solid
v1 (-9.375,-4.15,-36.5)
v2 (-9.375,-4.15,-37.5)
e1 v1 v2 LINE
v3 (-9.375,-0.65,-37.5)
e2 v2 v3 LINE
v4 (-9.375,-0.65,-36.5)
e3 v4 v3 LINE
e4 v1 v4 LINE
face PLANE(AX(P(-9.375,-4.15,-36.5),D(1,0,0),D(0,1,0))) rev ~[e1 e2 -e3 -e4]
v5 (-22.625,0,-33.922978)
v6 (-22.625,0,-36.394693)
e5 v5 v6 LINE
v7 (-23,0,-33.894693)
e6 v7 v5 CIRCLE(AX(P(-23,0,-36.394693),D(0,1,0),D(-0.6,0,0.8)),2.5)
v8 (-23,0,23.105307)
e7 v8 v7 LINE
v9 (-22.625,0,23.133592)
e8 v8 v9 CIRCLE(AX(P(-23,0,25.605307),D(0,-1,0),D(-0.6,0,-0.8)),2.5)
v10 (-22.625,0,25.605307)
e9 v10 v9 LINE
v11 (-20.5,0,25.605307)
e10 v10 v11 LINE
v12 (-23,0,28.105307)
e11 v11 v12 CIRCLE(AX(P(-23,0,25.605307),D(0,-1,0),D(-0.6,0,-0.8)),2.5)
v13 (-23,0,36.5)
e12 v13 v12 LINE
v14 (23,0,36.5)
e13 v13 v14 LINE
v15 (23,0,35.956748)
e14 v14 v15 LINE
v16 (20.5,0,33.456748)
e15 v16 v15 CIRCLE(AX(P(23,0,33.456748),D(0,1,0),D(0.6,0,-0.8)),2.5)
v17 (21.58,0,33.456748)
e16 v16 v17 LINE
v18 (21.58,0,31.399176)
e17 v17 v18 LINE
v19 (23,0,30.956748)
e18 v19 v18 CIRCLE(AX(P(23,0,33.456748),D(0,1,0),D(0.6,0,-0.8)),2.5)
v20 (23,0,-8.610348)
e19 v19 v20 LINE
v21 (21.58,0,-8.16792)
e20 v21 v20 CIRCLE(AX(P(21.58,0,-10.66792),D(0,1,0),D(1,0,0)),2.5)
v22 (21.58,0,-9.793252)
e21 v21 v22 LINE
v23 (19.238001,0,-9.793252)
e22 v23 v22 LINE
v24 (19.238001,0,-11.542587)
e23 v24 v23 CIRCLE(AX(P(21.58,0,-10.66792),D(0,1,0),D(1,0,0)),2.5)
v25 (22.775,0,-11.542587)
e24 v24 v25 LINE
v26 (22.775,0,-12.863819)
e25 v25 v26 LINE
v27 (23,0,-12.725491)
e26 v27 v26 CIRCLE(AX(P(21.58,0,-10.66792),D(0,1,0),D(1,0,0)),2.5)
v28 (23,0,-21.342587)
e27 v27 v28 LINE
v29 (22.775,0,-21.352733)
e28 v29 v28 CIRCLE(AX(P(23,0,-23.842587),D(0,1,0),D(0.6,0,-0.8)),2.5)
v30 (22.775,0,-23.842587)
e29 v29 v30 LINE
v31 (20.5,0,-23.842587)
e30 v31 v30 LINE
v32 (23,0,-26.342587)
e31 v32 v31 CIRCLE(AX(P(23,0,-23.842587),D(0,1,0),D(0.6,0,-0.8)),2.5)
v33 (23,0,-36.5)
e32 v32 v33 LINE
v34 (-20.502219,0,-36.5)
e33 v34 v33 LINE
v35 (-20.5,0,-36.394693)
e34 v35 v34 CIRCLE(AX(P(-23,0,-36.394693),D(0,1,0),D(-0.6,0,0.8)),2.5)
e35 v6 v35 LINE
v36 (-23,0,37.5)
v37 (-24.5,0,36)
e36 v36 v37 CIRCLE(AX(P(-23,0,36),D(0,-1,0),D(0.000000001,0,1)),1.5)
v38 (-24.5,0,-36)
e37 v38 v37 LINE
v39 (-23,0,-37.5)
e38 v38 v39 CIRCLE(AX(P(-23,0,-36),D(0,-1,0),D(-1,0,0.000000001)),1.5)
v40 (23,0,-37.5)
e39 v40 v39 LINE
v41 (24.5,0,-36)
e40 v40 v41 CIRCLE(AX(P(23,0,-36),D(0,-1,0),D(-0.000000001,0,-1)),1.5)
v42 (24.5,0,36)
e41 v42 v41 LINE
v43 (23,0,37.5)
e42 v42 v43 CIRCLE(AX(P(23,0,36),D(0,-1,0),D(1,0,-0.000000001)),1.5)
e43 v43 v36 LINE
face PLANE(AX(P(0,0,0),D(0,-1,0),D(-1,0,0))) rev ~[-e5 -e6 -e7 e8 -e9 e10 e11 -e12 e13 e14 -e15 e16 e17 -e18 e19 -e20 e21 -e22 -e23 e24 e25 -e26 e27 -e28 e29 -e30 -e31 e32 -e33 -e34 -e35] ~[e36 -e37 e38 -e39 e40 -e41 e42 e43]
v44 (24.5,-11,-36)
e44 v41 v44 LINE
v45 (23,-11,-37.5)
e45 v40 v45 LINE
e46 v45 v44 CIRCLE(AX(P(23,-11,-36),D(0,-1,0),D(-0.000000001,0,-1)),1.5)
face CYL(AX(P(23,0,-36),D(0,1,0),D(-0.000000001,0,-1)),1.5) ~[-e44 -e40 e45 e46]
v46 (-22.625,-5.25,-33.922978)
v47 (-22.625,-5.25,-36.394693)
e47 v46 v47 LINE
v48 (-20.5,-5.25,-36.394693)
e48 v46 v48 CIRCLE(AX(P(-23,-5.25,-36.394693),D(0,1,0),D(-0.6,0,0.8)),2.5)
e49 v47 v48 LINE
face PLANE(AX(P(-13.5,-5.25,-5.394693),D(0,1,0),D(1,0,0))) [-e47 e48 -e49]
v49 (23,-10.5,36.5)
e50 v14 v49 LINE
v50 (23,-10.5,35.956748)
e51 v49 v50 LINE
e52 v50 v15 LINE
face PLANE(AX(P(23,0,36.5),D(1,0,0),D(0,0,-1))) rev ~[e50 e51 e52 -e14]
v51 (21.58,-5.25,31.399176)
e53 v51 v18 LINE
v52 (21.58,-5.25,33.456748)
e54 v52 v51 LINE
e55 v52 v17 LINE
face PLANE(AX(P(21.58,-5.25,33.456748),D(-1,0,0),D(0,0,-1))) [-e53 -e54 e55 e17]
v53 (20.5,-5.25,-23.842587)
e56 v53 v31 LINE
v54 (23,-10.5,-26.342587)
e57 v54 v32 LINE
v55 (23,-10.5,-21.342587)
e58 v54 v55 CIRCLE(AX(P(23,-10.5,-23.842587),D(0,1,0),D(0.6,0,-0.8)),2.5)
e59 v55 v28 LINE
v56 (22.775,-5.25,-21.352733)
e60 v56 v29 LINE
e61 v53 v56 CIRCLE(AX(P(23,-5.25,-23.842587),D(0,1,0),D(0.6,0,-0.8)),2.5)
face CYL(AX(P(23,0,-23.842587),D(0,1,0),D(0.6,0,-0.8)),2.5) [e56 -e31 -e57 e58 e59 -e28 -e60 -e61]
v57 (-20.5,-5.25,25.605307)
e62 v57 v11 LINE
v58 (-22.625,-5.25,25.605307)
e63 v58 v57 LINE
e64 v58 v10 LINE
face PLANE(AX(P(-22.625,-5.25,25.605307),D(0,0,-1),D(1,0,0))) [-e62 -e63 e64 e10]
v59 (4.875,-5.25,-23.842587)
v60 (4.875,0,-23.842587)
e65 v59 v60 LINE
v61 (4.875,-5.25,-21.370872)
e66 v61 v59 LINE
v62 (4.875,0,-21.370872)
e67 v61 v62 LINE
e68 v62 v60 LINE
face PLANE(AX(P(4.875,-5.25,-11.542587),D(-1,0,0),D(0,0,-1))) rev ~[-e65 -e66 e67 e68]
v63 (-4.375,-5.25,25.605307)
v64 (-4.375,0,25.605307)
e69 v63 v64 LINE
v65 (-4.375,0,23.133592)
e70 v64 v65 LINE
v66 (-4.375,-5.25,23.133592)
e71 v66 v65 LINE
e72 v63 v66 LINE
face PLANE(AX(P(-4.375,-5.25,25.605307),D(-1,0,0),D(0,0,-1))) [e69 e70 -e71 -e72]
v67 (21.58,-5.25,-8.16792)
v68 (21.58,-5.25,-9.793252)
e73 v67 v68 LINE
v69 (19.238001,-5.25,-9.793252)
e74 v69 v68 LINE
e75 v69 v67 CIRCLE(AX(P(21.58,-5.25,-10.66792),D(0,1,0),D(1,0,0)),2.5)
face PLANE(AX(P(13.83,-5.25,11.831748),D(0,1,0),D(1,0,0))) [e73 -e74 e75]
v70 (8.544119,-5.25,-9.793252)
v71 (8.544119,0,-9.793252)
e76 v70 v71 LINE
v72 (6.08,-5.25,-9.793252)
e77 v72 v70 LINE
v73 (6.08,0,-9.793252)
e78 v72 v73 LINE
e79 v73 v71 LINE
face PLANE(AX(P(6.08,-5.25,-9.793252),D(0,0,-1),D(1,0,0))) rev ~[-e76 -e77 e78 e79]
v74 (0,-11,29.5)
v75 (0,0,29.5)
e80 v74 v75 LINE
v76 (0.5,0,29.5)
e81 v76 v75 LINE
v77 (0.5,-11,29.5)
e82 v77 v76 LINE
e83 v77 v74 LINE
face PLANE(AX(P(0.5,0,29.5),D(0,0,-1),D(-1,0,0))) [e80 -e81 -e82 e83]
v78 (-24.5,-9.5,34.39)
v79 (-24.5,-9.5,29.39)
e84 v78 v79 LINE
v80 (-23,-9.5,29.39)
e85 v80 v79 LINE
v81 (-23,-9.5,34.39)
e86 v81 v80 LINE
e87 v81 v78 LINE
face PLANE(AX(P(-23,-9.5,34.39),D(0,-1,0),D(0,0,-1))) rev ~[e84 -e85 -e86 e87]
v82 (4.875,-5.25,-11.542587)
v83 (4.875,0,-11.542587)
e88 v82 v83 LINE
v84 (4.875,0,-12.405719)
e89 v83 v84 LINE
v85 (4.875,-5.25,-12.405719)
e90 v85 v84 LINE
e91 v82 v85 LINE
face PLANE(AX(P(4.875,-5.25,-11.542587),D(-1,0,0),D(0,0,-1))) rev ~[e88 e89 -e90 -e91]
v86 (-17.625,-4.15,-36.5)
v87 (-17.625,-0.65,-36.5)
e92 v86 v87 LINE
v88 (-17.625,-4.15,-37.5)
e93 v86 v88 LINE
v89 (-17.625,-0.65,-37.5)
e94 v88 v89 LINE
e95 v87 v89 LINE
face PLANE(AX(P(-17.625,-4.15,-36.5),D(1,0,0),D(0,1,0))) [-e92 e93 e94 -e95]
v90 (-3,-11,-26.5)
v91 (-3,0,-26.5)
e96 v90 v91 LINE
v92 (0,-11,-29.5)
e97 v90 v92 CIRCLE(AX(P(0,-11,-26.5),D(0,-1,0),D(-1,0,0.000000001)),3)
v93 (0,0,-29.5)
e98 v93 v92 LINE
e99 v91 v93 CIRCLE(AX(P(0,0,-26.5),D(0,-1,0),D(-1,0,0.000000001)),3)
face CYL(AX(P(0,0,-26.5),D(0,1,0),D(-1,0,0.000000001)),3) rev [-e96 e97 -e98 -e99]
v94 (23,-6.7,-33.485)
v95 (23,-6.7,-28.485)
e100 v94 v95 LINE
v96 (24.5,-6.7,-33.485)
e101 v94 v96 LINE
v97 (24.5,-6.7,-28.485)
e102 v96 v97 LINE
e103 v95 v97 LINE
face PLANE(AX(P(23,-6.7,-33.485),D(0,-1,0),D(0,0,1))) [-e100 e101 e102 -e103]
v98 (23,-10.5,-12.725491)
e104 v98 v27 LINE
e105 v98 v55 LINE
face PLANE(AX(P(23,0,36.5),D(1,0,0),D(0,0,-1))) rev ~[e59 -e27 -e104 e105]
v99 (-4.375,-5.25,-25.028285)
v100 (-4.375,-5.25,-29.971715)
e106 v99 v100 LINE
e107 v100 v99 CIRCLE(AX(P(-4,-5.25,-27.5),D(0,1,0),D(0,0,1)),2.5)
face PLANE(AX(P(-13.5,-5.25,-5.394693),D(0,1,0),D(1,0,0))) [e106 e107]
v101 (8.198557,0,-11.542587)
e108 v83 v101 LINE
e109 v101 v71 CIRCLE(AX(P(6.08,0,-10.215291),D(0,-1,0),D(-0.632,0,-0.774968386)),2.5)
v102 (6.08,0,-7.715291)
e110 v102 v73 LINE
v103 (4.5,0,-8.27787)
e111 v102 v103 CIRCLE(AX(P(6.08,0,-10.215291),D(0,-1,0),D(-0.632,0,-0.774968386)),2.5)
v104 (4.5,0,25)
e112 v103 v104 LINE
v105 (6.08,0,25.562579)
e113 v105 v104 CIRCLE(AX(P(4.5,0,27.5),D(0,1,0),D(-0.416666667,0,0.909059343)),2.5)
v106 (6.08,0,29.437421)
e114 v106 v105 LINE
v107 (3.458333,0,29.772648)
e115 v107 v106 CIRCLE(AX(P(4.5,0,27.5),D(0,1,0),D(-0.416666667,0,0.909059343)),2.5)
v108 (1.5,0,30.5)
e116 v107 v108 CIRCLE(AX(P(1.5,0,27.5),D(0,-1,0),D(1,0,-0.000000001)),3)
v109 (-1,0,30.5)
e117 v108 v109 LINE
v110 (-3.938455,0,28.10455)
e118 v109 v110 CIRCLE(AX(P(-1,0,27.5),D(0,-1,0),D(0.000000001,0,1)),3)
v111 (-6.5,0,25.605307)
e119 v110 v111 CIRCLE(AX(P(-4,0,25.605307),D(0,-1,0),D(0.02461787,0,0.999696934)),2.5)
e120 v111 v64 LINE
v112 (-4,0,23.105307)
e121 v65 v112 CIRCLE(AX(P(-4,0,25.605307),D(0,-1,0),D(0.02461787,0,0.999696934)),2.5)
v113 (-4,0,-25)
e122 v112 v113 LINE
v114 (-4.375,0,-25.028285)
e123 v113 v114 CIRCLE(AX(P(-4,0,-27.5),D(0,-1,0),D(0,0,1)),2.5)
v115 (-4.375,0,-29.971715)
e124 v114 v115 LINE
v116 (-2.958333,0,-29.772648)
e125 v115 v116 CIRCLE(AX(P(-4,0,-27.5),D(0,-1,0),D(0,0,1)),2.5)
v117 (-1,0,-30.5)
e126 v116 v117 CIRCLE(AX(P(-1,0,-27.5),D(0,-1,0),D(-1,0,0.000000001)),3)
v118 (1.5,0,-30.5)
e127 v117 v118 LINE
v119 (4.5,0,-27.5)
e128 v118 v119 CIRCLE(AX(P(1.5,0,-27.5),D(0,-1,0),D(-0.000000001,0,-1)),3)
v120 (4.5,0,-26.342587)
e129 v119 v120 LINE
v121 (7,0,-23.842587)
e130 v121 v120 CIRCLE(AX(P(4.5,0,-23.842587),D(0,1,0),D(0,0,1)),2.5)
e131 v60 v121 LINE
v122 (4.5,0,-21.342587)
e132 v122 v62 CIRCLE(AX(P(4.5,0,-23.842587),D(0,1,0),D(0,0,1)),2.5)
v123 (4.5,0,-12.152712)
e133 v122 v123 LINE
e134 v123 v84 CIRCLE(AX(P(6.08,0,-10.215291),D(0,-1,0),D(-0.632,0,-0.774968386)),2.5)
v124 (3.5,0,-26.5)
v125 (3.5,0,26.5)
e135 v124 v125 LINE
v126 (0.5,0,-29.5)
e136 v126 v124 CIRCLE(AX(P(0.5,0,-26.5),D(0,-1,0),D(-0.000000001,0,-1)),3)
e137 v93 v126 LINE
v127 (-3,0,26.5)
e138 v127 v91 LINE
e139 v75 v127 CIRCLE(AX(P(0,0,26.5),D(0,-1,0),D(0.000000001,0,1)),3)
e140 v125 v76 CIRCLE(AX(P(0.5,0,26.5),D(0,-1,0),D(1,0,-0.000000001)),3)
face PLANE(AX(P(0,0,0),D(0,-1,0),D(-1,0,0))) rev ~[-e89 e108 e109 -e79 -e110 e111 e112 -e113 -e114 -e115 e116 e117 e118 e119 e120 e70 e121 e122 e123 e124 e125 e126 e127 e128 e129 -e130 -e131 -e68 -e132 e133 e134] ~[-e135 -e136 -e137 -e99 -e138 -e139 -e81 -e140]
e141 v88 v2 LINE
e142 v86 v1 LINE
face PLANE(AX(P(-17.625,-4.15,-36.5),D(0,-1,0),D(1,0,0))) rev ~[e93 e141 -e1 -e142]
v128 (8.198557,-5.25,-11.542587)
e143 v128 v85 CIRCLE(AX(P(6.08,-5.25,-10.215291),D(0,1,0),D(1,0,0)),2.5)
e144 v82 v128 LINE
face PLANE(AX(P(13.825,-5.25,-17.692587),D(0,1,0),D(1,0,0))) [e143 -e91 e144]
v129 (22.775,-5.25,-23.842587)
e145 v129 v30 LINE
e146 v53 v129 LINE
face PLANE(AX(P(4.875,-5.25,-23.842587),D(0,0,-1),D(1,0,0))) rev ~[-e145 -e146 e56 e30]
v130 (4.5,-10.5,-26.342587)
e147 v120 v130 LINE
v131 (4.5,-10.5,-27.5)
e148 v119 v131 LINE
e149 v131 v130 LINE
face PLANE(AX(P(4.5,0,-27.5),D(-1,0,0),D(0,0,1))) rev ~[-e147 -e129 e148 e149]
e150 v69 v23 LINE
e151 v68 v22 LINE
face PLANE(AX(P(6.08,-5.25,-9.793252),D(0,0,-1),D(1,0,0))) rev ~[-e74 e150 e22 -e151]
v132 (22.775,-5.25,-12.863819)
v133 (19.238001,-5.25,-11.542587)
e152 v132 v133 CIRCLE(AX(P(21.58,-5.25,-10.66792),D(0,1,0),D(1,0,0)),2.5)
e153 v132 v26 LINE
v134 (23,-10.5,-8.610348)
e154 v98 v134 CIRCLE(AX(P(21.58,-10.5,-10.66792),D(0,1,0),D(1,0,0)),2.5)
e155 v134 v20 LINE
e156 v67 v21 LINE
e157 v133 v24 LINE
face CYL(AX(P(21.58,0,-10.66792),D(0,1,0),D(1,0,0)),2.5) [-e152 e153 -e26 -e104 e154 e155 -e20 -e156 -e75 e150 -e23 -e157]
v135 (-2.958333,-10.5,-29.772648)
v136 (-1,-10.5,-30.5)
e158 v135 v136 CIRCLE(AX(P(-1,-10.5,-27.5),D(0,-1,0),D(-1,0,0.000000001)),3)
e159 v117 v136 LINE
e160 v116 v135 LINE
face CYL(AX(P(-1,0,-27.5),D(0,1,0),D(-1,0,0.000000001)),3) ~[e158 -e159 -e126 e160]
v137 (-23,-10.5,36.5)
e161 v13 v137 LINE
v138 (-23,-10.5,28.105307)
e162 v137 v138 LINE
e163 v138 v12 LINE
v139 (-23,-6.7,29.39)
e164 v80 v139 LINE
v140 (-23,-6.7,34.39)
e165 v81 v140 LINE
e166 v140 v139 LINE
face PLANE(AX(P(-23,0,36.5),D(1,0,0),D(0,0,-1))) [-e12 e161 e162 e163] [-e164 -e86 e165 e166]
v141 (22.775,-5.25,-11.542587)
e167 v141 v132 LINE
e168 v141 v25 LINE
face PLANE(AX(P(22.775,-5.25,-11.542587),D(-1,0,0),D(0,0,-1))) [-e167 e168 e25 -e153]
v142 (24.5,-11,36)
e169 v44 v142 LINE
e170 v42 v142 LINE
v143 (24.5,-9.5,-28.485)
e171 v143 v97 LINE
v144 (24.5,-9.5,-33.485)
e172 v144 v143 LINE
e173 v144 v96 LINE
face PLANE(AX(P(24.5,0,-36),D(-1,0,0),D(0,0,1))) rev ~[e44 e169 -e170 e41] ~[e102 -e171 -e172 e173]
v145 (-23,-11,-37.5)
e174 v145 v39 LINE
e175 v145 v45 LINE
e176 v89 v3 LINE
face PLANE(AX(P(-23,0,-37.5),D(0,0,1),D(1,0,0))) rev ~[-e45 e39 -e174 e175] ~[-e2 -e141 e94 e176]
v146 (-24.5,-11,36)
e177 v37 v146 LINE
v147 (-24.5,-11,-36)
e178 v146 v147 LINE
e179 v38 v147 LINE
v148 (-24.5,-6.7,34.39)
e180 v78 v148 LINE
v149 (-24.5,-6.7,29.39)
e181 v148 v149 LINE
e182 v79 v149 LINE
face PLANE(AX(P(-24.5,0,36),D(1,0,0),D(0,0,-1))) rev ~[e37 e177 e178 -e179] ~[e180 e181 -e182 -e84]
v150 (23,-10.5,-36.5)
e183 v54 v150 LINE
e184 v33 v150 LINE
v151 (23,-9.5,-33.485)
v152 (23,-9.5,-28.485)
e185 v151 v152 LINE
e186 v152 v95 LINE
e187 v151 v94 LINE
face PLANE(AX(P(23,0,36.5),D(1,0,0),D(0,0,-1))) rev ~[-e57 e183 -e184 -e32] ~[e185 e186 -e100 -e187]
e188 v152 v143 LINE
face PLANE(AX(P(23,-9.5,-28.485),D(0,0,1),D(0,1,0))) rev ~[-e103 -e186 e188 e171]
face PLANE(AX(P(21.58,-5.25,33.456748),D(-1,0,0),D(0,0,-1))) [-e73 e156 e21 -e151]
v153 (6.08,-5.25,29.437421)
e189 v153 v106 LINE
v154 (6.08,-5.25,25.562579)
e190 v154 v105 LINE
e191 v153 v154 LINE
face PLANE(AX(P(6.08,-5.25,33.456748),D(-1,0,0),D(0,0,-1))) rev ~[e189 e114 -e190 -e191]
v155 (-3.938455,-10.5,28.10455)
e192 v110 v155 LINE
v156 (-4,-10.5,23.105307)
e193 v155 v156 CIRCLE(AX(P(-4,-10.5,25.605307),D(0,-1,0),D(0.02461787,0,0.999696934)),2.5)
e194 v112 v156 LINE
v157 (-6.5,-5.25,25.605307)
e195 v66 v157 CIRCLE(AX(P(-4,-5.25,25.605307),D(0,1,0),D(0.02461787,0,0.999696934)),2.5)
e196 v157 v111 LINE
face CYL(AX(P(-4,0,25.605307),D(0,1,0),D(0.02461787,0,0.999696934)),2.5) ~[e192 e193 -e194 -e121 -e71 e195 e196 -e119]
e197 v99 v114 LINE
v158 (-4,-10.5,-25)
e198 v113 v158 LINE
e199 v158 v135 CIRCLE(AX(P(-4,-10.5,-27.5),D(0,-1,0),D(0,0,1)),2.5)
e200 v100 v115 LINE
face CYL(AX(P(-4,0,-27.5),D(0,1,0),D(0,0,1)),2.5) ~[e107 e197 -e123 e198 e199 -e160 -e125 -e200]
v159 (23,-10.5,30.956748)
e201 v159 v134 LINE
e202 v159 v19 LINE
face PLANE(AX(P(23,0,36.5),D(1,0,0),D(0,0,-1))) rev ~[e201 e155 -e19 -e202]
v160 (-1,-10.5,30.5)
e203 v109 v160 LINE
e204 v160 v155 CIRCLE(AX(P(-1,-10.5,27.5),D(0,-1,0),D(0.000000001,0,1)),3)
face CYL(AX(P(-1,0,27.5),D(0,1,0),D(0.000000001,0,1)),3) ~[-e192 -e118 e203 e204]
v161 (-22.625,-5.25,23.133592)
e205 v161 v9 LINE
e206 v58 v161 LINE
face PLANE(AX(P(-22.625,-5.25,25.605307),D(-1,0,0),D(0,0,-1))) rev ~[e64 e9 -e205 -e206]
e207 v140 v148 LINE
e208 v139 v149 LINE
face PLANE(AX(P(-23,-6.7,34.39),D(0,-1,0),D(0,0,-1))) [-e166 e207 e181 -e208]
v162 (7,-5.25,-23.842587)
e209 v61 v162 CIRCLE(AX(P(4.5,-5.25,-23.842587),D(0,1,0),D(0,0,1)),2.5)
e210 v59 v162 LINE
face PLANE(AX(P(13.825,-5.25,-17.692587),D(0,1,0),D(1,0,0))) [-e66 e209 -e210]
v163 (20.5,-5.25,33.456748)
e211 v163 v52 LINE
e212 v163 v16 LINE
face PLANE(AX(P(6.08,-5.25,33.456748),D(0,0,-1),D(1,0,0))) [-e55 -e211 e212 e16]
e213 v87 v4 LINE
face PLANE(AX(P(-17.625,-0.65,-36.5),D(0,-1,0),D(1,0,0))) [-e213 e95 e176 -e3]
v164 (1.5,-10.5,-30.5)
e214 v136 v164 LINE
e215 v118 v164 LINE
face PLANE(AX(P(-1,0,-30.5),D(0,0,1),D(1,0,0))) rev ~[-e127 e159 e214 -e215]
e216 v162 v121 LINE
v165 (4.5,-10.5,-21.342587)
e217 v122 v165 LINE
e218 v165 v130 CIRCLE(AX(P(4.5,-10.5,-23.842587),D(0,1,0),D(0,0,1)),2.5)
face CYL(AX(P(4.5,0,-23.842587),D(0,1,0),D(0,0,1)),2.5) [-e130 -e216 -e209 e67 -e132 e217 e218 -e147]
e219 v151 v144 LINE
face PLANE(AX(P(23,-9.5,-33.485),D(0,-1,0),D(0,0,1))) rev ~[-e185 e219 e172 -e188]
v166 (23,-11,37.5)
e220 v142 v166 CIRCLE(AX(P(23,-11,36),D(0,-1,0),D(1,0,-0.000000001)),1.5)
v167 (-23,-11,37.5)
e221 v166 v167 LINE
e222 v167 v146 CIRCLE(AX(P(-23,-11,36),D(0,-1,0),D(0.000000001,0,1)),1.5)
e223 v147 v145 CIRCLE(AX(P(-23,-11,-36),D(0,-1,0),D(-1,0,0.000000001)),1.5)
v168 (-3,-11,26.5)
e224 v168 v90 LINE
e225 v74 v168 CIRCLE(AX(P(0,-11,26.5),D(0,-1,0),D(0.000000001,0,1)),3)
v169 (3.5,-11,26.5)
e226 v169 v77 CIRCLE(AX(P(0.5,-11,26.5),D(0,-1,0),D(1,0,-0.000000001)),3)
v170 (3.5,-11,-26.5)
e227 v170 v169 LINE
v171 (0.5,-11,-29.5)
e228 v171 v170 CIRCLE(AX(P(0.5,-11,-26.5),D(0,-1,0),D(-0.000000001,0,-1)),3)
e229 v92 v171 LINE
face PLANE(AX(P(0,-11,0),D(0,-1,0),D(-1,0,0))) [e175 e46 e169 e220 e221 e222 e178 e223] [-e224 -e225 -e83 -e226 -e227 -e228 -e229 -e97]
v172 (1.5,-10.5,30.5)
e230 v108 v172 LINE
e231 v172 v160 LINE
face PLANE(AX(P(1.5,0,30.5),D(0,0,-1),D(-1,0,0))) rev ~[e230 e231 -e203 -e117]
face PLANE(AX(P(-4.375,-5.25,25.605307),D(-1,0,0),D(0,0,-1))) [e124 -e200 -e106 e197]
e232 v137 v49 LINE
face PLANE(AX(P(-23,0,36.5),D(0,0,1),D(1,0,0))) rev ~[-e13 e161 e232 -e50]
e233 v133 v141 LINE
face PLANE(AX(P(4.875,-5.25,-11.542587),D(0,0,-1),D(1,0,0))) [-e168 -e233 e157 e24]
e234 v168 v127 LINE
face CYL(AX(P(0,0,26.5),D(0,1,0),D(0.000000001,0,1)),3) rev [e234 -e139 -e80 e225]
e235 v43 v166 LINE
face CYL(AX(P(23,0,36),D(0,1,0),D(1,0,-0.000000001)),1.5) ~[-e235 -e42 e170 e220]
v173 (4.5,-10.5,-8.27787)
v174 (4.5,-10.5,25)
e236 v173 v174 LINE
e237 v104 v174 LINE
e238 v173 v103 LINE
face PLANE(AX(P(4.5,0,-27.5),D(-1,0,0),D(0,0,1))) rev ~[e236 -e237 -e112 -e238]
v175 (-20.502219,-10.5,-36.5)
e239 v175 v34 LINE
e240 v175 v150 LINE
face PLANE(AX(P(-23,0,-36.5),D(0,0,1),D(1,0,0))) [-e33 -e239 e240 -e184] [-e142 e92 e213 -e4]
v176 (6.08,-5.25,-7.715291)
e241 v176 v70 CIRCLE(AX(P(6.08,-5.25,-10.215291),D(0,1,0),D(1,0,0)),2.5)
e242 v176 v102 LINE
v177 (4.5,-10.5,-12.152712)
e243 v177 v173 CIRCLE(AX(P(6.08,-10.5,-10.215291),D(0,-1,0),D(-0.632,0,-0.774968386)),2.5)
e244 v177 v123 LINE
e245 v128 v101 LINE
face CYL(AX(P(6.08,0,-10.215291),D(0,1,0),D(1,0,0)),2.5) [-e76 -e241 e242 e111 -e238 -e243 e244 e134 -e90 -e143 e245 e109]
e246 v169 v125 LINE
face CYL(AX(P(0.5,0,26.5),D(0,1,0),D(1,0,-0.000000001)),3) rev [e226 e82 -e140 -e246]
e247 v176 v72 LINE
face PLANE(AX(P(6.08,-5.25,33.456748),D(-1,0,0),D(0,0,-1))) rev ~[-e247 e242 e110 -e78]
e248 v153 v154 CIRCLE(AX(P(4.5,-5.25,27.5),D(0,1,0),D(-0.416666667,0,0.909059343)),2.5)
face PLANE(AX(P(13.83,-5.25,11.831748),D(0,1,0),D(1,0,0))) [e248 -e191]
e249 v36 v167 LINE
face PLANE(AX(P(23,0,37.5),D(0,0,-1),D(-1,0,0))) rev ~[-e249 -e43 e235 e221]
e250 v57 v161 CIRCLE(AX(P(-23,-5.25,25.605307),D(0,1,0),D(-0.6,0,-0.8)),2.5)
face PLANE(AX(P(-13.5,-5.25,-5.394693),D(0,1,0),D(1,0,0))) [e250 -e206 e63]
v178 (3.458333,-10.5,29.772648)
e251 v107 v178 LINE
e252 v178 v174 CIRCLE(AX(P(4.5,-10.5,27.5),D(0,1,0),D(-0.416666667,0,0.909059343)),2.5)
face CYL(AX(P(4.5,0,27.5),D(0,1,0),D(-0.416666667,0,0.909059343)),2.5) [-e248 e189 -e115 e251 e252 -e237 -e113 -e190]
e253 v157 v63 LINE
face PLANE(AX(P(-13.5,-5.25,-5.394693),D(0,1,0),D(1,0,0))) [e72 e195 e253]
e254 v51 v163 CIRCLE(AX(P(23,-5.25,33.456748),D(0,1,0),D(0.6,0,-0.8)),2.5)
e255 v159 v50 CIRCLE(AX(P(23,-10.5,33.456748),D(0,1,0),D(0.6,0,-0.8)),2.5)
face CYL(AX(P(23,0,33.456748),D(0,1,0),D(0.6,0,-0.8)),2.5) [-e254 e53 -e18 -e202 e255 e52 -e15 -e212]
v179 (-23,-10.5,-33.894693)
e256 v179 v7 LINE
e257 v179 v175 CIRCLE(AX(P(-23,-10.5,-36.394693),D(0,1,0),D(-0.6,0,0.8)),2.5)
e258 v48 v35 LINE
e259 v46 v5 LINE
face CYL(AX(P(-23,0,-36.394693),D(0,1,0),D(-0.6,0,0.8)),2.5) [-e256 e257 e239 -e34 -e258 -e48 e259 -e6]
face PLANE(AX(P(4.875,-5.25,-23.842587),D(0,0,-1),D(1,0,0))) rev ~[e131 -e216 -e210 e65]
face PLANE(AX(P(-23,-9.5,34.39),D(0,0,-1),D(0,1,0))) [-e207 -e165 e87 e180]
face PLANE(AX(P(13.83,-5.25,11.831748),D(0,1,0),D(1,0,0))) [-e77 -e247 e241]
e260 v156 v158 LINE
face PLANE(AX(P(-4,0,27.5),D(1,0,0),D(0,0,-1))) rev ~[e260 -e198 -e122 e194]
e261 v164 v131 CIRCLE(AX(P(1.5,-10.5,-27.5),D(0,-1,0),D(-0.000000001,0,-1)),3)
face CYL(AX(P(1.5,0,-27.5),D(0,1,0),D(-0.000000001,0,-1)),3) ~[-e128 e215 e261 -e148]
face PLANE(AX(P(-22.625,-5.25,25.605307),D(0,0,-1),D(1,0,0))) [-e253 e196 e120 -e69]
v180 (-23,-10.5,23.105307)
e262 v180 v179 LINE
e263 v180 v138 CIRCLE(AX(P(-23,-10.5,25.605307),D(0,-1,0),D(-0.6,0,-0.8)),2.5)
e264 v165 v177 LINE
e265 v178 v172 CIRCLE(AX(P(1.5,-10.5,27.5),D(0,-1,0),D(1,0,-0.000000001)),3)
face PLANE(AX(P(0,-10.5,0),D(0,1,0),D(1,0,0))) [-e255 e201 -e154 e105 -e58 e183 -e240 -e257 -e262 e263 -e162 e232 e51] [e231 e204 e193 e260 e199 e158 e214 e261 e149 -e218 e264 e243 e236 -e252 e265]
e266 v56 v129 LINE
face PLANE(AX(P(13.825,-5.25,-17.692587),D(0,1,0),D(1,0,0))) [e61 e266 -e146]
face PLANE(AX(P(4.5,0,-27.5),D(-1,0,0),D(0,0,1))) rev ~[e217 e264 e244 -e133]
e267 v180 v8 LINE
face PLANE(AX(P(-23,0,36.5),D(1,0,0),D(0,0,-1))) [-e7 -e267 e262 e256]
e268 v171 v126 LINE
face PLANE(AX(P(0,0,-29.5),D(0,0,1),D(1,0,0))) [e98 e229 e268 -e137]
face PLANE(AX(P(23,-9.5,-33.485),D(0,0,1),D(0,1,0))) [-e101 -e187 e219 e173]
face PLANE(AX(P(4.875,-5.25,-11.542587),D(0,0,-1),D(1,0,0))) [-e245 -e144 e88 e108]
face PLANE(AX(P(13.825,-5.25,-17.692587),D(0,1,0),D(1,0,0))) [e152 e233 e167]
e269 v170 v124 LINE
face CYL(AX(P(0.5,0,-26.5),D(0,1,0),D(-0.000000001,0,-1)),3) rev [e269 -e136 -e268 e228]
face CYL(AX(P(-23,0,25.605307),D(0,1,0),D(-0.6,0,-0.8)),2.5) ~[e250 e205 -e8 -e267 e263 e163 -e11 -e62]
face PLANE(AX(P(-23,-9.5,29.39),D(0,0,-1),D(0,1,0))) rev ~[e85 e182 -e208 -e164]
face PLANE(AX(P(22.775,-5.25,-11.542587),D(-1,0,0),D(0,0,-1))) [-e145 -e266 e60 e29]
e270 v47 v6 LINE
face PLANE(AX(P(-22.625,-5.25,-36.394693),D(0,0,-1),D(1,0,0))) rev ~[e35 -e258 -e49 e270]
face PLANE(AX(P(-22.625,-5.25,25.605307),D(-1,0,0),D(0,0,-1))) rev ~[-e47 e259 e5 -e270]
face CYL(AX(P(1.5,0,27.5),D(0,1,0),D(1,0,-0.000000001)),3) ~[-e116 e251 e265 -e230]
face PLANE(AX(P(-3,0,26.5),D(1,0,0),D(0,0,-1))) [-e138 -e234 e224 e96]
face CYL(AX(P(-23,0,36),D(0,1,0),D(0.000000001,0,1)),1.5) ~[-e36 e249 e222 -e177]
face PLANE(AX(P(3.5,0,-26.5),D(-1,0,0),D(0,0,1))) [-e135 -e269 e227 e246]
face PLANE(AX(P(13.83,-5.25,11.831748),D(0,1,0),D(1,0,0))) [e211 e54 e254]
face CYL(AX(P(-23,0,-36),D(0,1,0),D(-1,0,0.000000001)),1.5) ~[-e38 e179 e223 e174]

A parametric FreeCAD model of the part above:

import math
import FreeCAD as App
import Part
import Sketcher

V = App.Vector
Q = App.Units.Quantity

doc = App.newDocument("Part")
body = doc.addObject("PartDesign::Body", "Body")

# Sketch on XZ plane
sketch1 = doc.addObject("Sketcher::SketchObject", "Sketch")
body.addObject(sketch1)
sketch1.AttachmentSupport = (doc.XZ_Plane, [""])
sketch1.MapMode = "FlatFace"
sketch1.addGeometry([
    Part.LineSegment(V(-23, 37.5, 0), V(23, 37.5, 0)),  # 0
    Part.ArcOfCircle(Part.Circle(V(23, 36, 0), V(0, 0, 1), 1.5), math.radians(0), math.radians(90)),  # 1
    Part.LineSegment(V(24.5, 36, 0), V(24.5, -36, 0)),  # 2
    Part.ArcOfCircle(Part.Circle(V(23, -36, 0), V(0, 0, 1), 1.5), math.radians(-90), math.radians(0)),  # 3
    Part.LineSegment(V(23, -37.5, 0), V(-23, -37.5, 0)),  # 4
    Part.ArcOfCircle(Part.Circle(V(-23, -36, 0), V(0, 0, 1), 1.5), math.radians(180), math.radians(270)),  # 5
    Part.LineSegment(V(-24.5, -36, 0), V(-24.5, 36, 0)),  # 6
    Part.ArcOfCircle(Part.Circle(V(-23, 36, 0), V(0, 0, 1), 1.5), math.radians(90), math.radians(180)),  # 7
    Part.LineSegment(V(0, -29.5, 0), V(0.5, -29.5, 0)),  # 8
    Part.ArcOfCircle(Part.Circle(V(0.5, -26.5, 0), V(0, 0, 1), 3), math.radians(-90), math.radians(0)),  # 9
    Part.LineSegment(V(3.5, -26.5, 0), V(3.5, 26.5, 0)),  # 10
    Part.ArcOfCircle(Part.Circle(V(0.5, 26.5, 0), V(0, 0, 1), 3), math.radians(0), math.radians(90)),  # 11
    Part.LineSegment(V(0.5, 29.5, 0), V(0, 29.5, 0)),  # 12
    Part.ArcOfCircle(Part.Circle(V(0, 26.5, 0), V(0, 0, 1), 3), math.radians(90), math.radians(180)),  # 13
    Part.LineSegment(V(-3, 26.5, 0), V(-3, -26.5, 0)),  # 14
    Part.ArcOfCircle(Part.Circle(V(0, -26.5, 0), V(0, 0, 1), 3), math.radians(180), math.radians(270)),  # 15
], False)
sketch1.addConstraint([
    Sketcher.Constraint("Tangent", 0, 2, 1, 2),
    Sketcher.Constraint("Tangent", 1, 1, 2, 1),
    Sketcher.Constraint("Tangent", 2, 2, 3, 2),
    Sketcher.Constraint("Tangent", 3, 1, 4, 1),
    Sketcher.Constraint("Tangent", 4, 2, 5, 2),
    Sketcher.Constraint("Tangent", 5, 1, 6, 1),
    Sketcher.Constraint("Tangent", 6, 2, 7, 2),
    Sketcher.Constraint("Tangent", 7, 1, 0, 1),
    Sketcher.Constraint("Tangent", 8, 2, 9, 1),
    Sketcher.Constraint("Tangent", 9, 2, 10, 1),
    Sketcher.Constraint("Tangent", 10, 2, 11, 1),
    Sketcher.Constraint("Tangent", 11, 2, 12, 1),
    Sketcher.Constraint("Tangent", 12, 2, 13, 1),
    Sketcher.Constraint("Tangent", 13, 2, 14, 1),
    Sketcher.Constraint("Tangent", 14, 2, 15, 1),
    Sketcher.Constraint("Tangent", 15, 2, 8, 1),
    Sketcher.Constraint("Horizontal", 0),
    Sketcher.Constraint("Vertical", 2),
    Sketcher.Constraint("Horizontal", 4),
    Sketcher.Constraint("Vertical", 6),
    Sketcher.Constraint("Horizontal", 8),
    Sketcher.Constraint("Vertical", 10),
    Sketcher.Constraint("Horizontal", 12),
    Sketcher.Constraint("Vertical", 14),
    Sketcher.Constraint("Equal", 1, 3),
    Sketcher.Constraint("Equal", 3, 5),
    Sketcher.Constraint("Equal", 5, 7),
    Sketcher.Constraint("Equal", 9, 11),
    Sketcher.Constraint("Equal", 11, 13),
    Sketcher.Constraint("Equal", 13, 15),
    Sketcher.Constraint("Symmetric", 1, 3, 5, 3, -1, 1),
    Sketcher.Constraint("Symmetric", 13, 3, 15, 3, -1, 1),
    Sketcher.Constraint("Radius", 9, Q("3 mm")),
    Sketcher.Constraint("Radius", 1, Q("1.5 mm")),
    Sketcher.Constraint("DistanceX", 0, 1, 0, 2, Q("46 mm")),
    Sketcher.Constraint("DistanceY", 2, 2, 2, 1, Q("72 mm")),
    Sketcher.Constraint("DistanceY", 10, 1, 10, 2, Q("53 mm")),
    Sketcher.Constraint("DistanceX", 8, 1, 8, 2, Q("0.5 mm")),
])
pad1 = doc.addObject("PartDesign::Pad", "Pad")
body.addObject(pad1)
pad1.Profile = sketch1
pad1.Length = 11

# Sketch on XZ plane
sketch2 = doc.addObject("Sketcher::SketchObject", "Sketch001")
body.addObject(sketch2)
sketch2.AttachmentSupport = (doc.XZ_Plane, [""])
sketch2.MapMode = "FlatFace"
sketch2.addGeometry([
    Part.LineSegment(V(-23, -36.5, 0), V(-23, 36.5, 0)),  # 0
    Part.LineSegment(V(-23, 36.5, 0), V(23, 36.5, 0)),  # 1
    Part.LineSegment(V(23, 36.5, 0), V(23, -36.5, 0)),  # 2
    Part.LineSegment(V(23, -36.5, 0), V(-23, -36.5, 0)),  # 3
    Part.ArcOfCircle(Part.Circle(V(-1, -27.5, 0), V(0, 0, 1), 3), math.radians(180), math.radians(270)),  # 4
    Part.LineSegment(V(-1, -30.5, 0), V(1.5, -30.5, 0)),  # 5
    Part.ArcOfCircle(Part.Circle(V(1.5, -27.5, 0), V(0, 0, 1), 3), math.radians(-90), math.radians(0)),  # 6
    Part.LineSegment(V(4.5, -27.5, 0), V(4.5, 27.5, 0)),  # 7
    Part.ArcOfCircle(Part.Circle(V(1.5, 27.5, 0), V(0, 0, 1), 3), math.radians(0), math.radians(90)),  # 8
    Part.LineSegment(V(1.5, 30.5, 0), V(-1, 30.5, 0)),  # 9
    Part.ArcOfCircle(Part.Circle(V(-1, 27.5, 0), V(0, 0, 1), 3), math.radians(90), math.radians(180)),  # 10
    Part.LineSegment(V(-4, 27.5, 0), V(-4, -27.5, 0)),  # 11
    Part.LineSegment(V(0.5, -29.5, 0), V(0, -29.5, 0)),  # 12
    Part.ArcOfCircle(Part.Circle(V(0, -26.5, 0), V(0, 0, 1), 3), math.radians(180), math.radians(270)),  # 13
    Part.LineSegment(V(-3, -26.5, 0), V(-3, 26.5, 0)),  # 14
    Part.ArcOfCircle(Part.Circle(V(0, 26.5, 0), V(0, 0, 1), 3), math.radians(90), math.radians(180)),  # 15
    Part.LineSegment(V(0, 29.5, 0), V(0.5, 29.5, 0)),  # 16
    Part.ArcOfCircle(Part.Circle(V(0.5, 26.5, 0), V(0, 0, 1), 3), math.radians(0), math.radians(90)),  # 17
    Part.LineSegment(V(3.5, 26.5, 0), V(3.5, -26.5, 0)),  # 18
    Part.ArcOfCircle(Part.Circle(V(0.5, -26.5, 0), V(0, 0, 1), 3), math.radians(-90), math.radians(0)),  # 19
], False)
sketch2.addConstraint([
    Sketcher.Constraint("Coincident", 0, 2, 1, 1),
    Sketcher.Constraint("Coincident", 1, 2, 2, 1),
    Sketcher.Constraint("Coincident", 2, 2, 3, 1),
    Sketcher.Constraint("Coincident", 3, 2, 0, 1),
    Sketcher.Constraint("Tangent", 4, 2, 5, 1),
    Sketcher.Constraint("Tangent", 5, 2, 6, 1),
    Sketcher.Constraint("Tangent", 6, 2, 7, 1),
    Sketcher.Constraint("Tangent", 7, 2, 8, 1),
    Sketcher.Constraint("Tangent", 8, 2, 9, 1),
    Sketcher.Constraint("Tangent", 9, 2, 10, 1),
    Sketcher.Constraint("Tangent", 10, 2, 11, 1),
    Sketcher.Constraint("Tangent", 11, 2, 4, 1),
    Sketcher.Constraint("Tangent", 12, 2, 13, 2),
    Sketcher.Constraint("Tangent", 13, 1, 14, 1),
    Sketcher.Constraint("Tangent", 14, 2, 15, 2),
    Sketcher.Constraint("Tangent", 15, 1, 16, 1),
    Sketcher.Constraint("Tangent", 16, 2, 17, 2),
    Sketcher.Constraint("Tangent", 17, 1, 18, 1),
    Sketcher.Constraint("Tangent", 18, 2, 19, 2),
    Sketcher.Constraint("Tangent", 19, 1, 12, 1),
    Sketcher.Constraint("Vertical", 0),
    Sketcher.Constraint("Horizontal", 1),
    Sketcher.Constraint("Vertical", 2),
    Sketcher.Constraint("Horizontal", 3),
    Sketcher.Constraint("Horizontal", 5),
    Sketcher.Constraint("Vertical", 7),
    Sketcher.Constraint("Horizontal", 9),
    Sketcher.Constraint("Vertical", 11),
    Sketcher.Constraint("Horizontal", 12),
    Sketcher.Constraint("Vertical", 14),
    Sketcher.Constraint("Horizontal", 16),
    Sketcher.Constraint("Vertical", 18),
    Sketcher.Constraint("Equal", 4, 6),
    Sketcher.Constraint("Equal", 6, 8),
    Sketcher.Constraint("Equal", 8, 10),
    Sketcher.Constraint("Equal", 10, 13),
    Sketcher.Constraint("Equal", 13, 15),
    Sketcher.Constraint("Equal", 15, 17),
    Sketcher.Constraint("Equal", 17, 19),
    Sketcher.Constraint("Symmetric", 13, 3, 15, 3, -1, 1),
    Sketcher.Constraint("Symmetric", 0, 2, 2, 2, -1, 1),
    Sketcher.Constraint("Radius", 4, Q("3 mm")),
    Sketcher.Constraint("DistanceX", 1, 1, 1, 2, Q("46 mm")),
    Sketcher.Constraint("DistanceY", 0, 1, 0, 2, Q("73 mm")),
    Sketcher.Constraint("DistanceY", 7, 1, 7, 2, Q("55 mm")),
    Sketcher.Constraint("DistanceY", 14, 1, 14, 2, Q("53 mm")),
    Sketcher.Constraint("DistanceX", 5, 1, 5, 2, Q("2.5 mm")),
    Sketcher.Constraint("DistanceX", 12, 2, 12, 1, Q("0.5 mm")),
    Sketcher.Constraint("DistanceX", 4, 3, -1, 1, Q("1 mm")),
    Sketcher.Constraint("DistanceY", 4, 3, 13, 3, Q("1 mm")),
])
pocket1 = doc.addObject("PartDesign::Pocket", "Pocket")
body.addObject(pocket1)
pocket1.Profile = sketch2
pocket1.Length = 10.5
pocket1.Reversed = True

# Sketch on XZ plane
sketch3 = doc.addObject("Sketcher::SketchObject", "Sketch002")
body.addObject(sketch3)
sketch3.AttachmentSupport = (doc.XZ_Plane, [""])
sketch3.MapMode = "FlatFace"
sketch3.addGeometry([
    Part.Circle(V(21.6, -10.7, 0), V(0, 0, 1), 2.5),  # 0
    Part.Circle(V(6.1, -10.2, 0), V(0, 0, 1), 2.5),  # 1
    Part.LineSegment(V(24.5, 35.5, 0), V(24.5, 31.5, 0)),  # 2
    Part.ArcOfCircle(Part.Circle(V(23, 33.5, 0), V(0, 0, 1), 2.5), math.radians(53), math.radians(307)),  # 3
    Part.LineSegment(V(4.5, -26.3, 0), V(4.5, -21.3, 0)),  # 4
    Part.ArcOfCircle(Part.Circle(V(4.5, -23.8, 0), V(0, 0, 1), 2.5), math.radians(-90), math.radians(90)),  # 5
    Part.LineSegment(V(-4, -25, 0), V(-4, -27.5, 0)),  # 6
    Part.ArcOfCircle(Part.Circle(V(-1, -27.5, 0), V(0, 0, 1), 3), math.radians(180), math.radians(229)),  # 7
    Part.ArcOfCircle(Part.Circle(V(-4, -27.5, 0), V(0, 0, 1), 2.5), math.radians(90), math.radians(295)),  # 8
    Part.LineSegment(V(-24.5, 23.6, 0), V(-24.5, 27.6, 0)),  # 9
    Part.ArcOfCircle(Part.Circle(V(-23, 25.6, 0), V(0, 0, 1), 2.5), math.radians(-127), math.radians(127)),  # 10
    Part.LineSegment(V(-20.8, -37.5, 0), V(-23, -37.5, 0)),  # 11
    Part.ArcOfCircle(Part.Circle(V(-23, -36, 0), V(0, 0, 1), 1.5), math.radians(180), math.radians(270)),  # 12
    Part.LineSegment(V(-24.5, -36, 0), V(-24.5, -34.4, 0)),  # 13
    Part.ArcOfCircle(Part.Circle(V(-23, -36.4, 0), V(0, 0, 1), 2.5), math.radians(-26), math.radians(127)),  # 14
    Part.LineSegment(V(24.5, -21.8, 0), V(24.5, -25.8, 0)),  # 15
    Part.ArcOfCircle(Part.Circle(V(23, -23.8, 0), V(0, 0, 1), 2.5), math.radians(53), math.radians(307)),  # 16
    Part.LineSegment(V(-4, 27.5, 0), V(-4, 23.1, 0)),  # 17
    Part.ArcOfCircle(Part.Circle(V(-4, 25.6, 0), V(0, 0, 1), 2.5), math.radians(89), math.radians(270)),  # 18
    Part.ArcOfCircle(Part.Circle(V(-1, 27.5, 0), V(0, 0, 1), 3), math.radians(168.37), math.radians(180)),  # 19
    Part.LineSegment(V(4.5, 25, 0), V(4.5, 27.5, 0)),  # 20
    Part.ArcOfCircle(Part.Circle(V(1.5, 27.5, 0), V(0, 0, 1), 3), math.radians(0), math.radians(49)),  # 21
    Part.ArcOfCircle(Part.Circle(V(4.5, 27.5, 0), V(0, 0, 1), 2.5), math.radians(-90), math.radians(115)),  # 22
], False)
sketch3.addConstraint([
    Sketcher.Constraint("Coincident", 2, 1, 3, 1),
    Sketcher.Constraint("Coincident", 3, 2, 2, 2),
    Sketcher.Constraint("Coincident", 4, 1, 5, 1),
    Sketcher.Constraint("Coincident", 5, 2, 4, 2),
    Sketcher.Constraint("Tangent", 6, 2, 7, 1),
    Sketcher.Constraint("Coincident", 7, 2, 8, 2),
    Sketcher.Constraint("Coincident", 8, 1, 6, 1),
    Sketcher.Constraint("Coincident", 9, 1, 10, 1),
    Sketcher.Constraint("Coincident", 10, 2, 9, 2),
    Sketcher.Constraint("Tangent", 11, 2, 12, 2),
    Sketcher.Constraint("Tangent", 12, 1, 13, 1),
    Sketcher.Constraint("Coincident", 13, 2, 14, 2),
    Sketcher.Constraint("Coincident", 14, 1, 11, 1),
    Sketcher.Constraint("Coincident", 15, 1, 16, 1),
    Sketcher.Constraint("Coincident", 16, 2, 15, 2),
    Sketcher.Constraint("Coincident", 17, 2, 18, 2),
    Sketcher.Constraint("Coincident", 18, 1, 19, 1),
    Sketcher.Constraint("Tangent", 19, 2, 17, 1),
    Sketcher.Constraint("Tangent", 20, 2, 21, 1),
    Sketcher.Constraint("Coincident", 21, 2, 22, 2),
    Sketcher.Constraint("Coincident", 22, 1, 20, 1),
    Sketcher.Constraint("Vertical", 2),
    Sketcher.Constraint("Vertical", 4),
    Sketcher.Constraint("Vertical", 6),
    Sketcher.Constraint("Vertical", 9),
    Sketcher.Constraint("Horizontal", 11),
    Sketcher.Constraint("Vertical", 13),
    Sketcher.Constraint("Vertical", 15),
    Sketcher.Constraint("Vertical", 17),
    Sketcher.Constraint("Vertical", 20),
    Sketcher.Constraint("Coincident", 6, 2, 8, 3),
    Sketcher.Constraint("Coincident", 20, 2, 22, 3),
    Sketcher.Constraint("Equal", 0, 1),
    Sketcher.Constraint("Equal", 1, 3),
    Sketcher.Constraint("Equal", 3, 5),
    Sketcher.Constraint("Equal", 5, 8),
    Sketcher.Constraint("Equal", 8, 10),
    Sketcher.Constraint("Equal", 10, 14),
    Sketcher.Constraint("Equal", 14, 16),
    Sketcher.Constraint("Equal", 16, 18),
    Sketcher.Constraint("Equal", 7, 19),
    Sketcher.Constraint("Equal", 19, 21),
    Sketcher.Constraint("Equal", 18, 22),
    Sketcher.Constraint("Symmetric", 7, 3, 19, 3, -1),
    Sketcher.Constraint("Horizontal", 5, 3, 16, 3),
    Sketcher.Constraint("Horizontal", 10, 3, 18, 3),
    Sketcher.Constraint("Horizontal", 19, 3, 21, 3),
    Sketcher.Constraint("Vertical", 10, 3, 12, 3),
    Sketcher.Constraint("Vertical", 12, 3, 14, 3),
    Sketcher.Constraint("Vertical", 3, 3, 16, 3),
    Sketcher.Constraint("Vertical", 8, 3, 18, 3),
    Sketcher.Constraint("Vertical", 5, 3, 22, 3),
    Sketcher.Constraint("Vertical", 22, 3, 4, 1),
    Sketcher.Constraint("Vertical", 10, 2, 12, 1),
    Sketcher.Constraint("Vertical", 3, 2, 15, 1),
    Sketcher.Constraint("Equal", 2, 9),
    Sketcher.Constraint("Diameter", 0, Q("5 mm")),
    Sketcher.Constraint("Radius", 7, Q("3 mm")),
    Sketcher.Constraint("Radius", 12, Q("1.5 mm")),
    Sketcher.Constraint("DistanceX", -1, 1, 3, 3, Q("23 mm")),
    Sketcher.Constraint("DistanceX", 7, 3, -1, 1, Q("1 mm")),
    Sketcher.Constraint("DistanceX", 10, 3, -1, 1, Q("23 mm")),
    Sketcher.Constraint("DistanceY", 12, 3, -1, 1, Q("36 mm")),
    Sketcher.Constraint("DistanceY", 8, 1, -1, 1, Q("25 mm")),
    Sketcher.Constraint("DistanceX", 22, 3, 2, 1, Q("20 mm")),
    Sketcher.Constraint("DistanceX", 1, 3, 0, 3, Q("15.5 mm")),
    Sketcher.Constraint("DistanceX", -1, 1, 0, 3, Q("21.58 mm")),
    Sketcher.Constraint("DistanceY", 1, 3, 10, 3, Q("35.820598 mm")),
    Sketcher.Constraint("DistanceY", 14, 3, 1, 3, Q("26.179402 mm")),
    Sketcher.Constraint("DistanceY", 18, 1, 21, 2, Q("1.668099 mm")),
    Sketcher.Constraint("DistanceY", 0, 3, -1, 1, Q("10.66792 mm")),
    Sketcher.Constraint("DistanceY", 1, 3, 3, 3, Q("43.672038 mm")),
    Sketcher.Constraint("DistanceY", 7, 2, 4, 1, Q("3.430061 mm")),
])
pad2 = doc.addObject("PartDesign::Pad", "Pad001")
body.addObject(pad2)
pad2.Profile = sketch3
pad2.Length = 10.5

# Sketch on XZ plane
sketch4 = doc.addObject("Sketcher::SketchObject", "Sketch003")
body.addObject(sketch4)
sketch4.AttachmentSupport = (doc.XZ_Plane, [""])
sketch4.MapMode = "FlatFace"
sketch4.AttachmentOffset = App.Placement(V(0, 0, 5.25), App.Rotation())
sketch4.addGeometry([
    Part.LineSegment(V(6, -10, 0), V(6, 33, 0)),  # 0
    Part.LineSegment(V(6, 33, 0), V(22, 33, 0)),  # 1
    Part.LineSegment(V(22, 33, 0), V(22, -10, 0)),  # 2
    Part.LineSegment(V(22, -10, 0), V(6, -10, 0)),  # 3
    Part.LineSegment(V(5, -24, 0), V(5, -12, 0)),  # 4
    Part.LineSegment(V(5, -12, 0), V(23, -12, 0)),  # 5
    Part.LineSegment(V(23, -12, 0), V(23, -24, 0)),  # 6
    Part.LineSegment(V(23, -24, 0), V(5, -24, 0)),  # 7
    Part.LineSegment(V(-23, -36, 0), V(-23, 26, 0)),  # 8
    Part.LineSegment(V(-23, 26, 0), V(-4, 26, 0)),  # 9
    Part.LineSegment(V(-4, 26, 0), V(-4, -36, 0)),  # 10
    Part.LineSegment(V(-4, -36, 0), V(-23, -36, 0)),  # 11
], False)
sketch4.addConstraint([
    Sketcher.Constraint("Coincident", 0, 2, 1, 1),
    Sketcher.Constraint("Coincident", 1, 2, 2, 1),
    Sketcher.Constraint("Coincident", 2, 2, 3, 1),
    Sketcher.Constraint("Coincident", 3, 2, 0, 1),
    Sketcher.Constraint("Coincident", 4, 2, 5, 1),
    Sketcher.Constraint("Coincident", 5, 2, 6, 1),
    Sketcher.Constraint("Coincident", 6, 2, 7, 1),
    Sketcher.Constraint("Coincident", 7, 2, 4, 1),
    Sketcher.Constraint("Coincident", 8, 2, 9, 1),
    Sketcher.Constraint("Coincident", 9, 2, 10, 1),
    Sketcher.Constraint("Coincident", 10, 2, 11, 1),
    Sketcher.Constraint("Coincident", 11, 2, 8, 1),
    Sketcher.Constraint("Vertical", 0),
    Sketcher.Constraint("Horizontal", 1),
    Sketcher.Constraint("Vertical", 2),
    Sketcher.Constraint("Horizontal", 3),
    Sketcher.Constraint("Vertical", 4),
    Sketcher.Constraint("Horizontal", 5),
    Sketcher.Constraint("Vertical", 6),
    Sketcher.Constraint("Horizontal", 7),
    Sketcher.Constraint("Vertical", 8),
    Sketcher.Constraint("Horizontal", 9),
    Sketcher.Constraint("Vertical", 10),
    Sketcher.Constraint("Horizontal", 11),
    Sketcher.Constraint("DistanceY", 8, 1, 8, 2, Q("62 mm")),
    Sketcher.Constraint("DistanceX", 1, 1, 1, 2, Q("15.5 mm")),
    Sketcher.Constraint("DistanceX", 5, 1, 5, 2, Q("17.9 mm")),
    Sketcher.Constraint("DistanceY", 4, 1, 4, 2, Q("12.3 mm")),
    Sketcher.Constraint("DistanceX", 9, 1, 9, 2, Q("18.25 mm")),
    Sketcher.Constraint("DistanceY", 0, 1, 0, 2, Q("43.25 mm")),
    Sketcher.Constraint("DistanceX", 8, 2, 4, 2, Q("27.5 mm")),
    Sketcher.Constraint("DistanceX", -1, 1, 0, 2, Q("6.08 mm")),
    Sketcher.Constraint("DistanceX", -1, 1, 4, 2, Q("4.875 mm")),
    Sketcher.Constraint("DistanceY", 8, 2, 0, 2, Q("7.85144 mm")),
    Sketcher.Constraint("DistanceY", -1, 1, 0, 2, Q("33.456748 mm")),
    Sketcher.Constraint("DistanceY", 4, 2, -1, 1, Q("11.542587 mm")),
])
pocket2 = doc.addObject("PartDesign::Pocket", "Pocket001")
body.addObject(pocket2)
pocket2.Profile = sketch4
pocket2.Length = 5.25

# Sketch on YZ plane
sketch5 = doc.addObject("Sketcher::SketchObject", "Sketch004")
body.addObject(sketch5)
sketch5.AttachmentSupport = (doc.YZ_Plane, [""])
sketch5.MapMode = "FlatFace"
sketch5.AttachmentOffset = App.Placement(V(0, 0, 23), App.Rotation())
sketch5.addGeometry([
    Part.LineSegment(V(-6.7, -33.5, 0), V(-9.5, -33.5, 0)),
    Part.LineSegment(V(-9.5, -33.5, 0), V(-9.5, -28.5, 0)),
    Part.LineSegment(V(-9.5, -28.5, 0), V(-6.7, -28.5, 0)),
    Part.LineSegment(V(-6.7, -28.5, 0), V(-6.7, -33.5, 0)),
], False)
sketch5.addConstraint([
    Sketcher.Constraint("Coincident", 0, 2, 1, 1),
    Sketcher.Constraint("Coincident", 1, 2, 2, 1),
    Sketcher.Constraint("Coincident", 2, 2, 3, 1),
    Sketcher.Constraint("Coincident", 3, 2, 0, 1),
    Sketcher.Constraint("Horizontal", 0),
    Sketcher.Constraint("Vertical", 1),
    Sketcher.Constraint("Horizontal", 2),
    Sketcher.Constraint("Vertical", 3),
    Sketcher.Constraint("DistanceY", 1, 1, 1, 2, Q("5 mm")),
    Sketcher.Constraint("DistanceX", 0, 2, 0, 1, Q("2.8 mm")),
    Sketcher.Constraint("DistanceX", 0, 2, -1, 1, Q("9.5 mm")),
    Sketcher.Constraint("DistanceY", 0, 2, -1, 1, Q("33.485 mm")),
])
pocket3 = doc.addObject("PartDesign::Pocket", "Pocket002")
body.addObject(pocket3)
pocket3.Profile = sketch5
pocket3.Length = 5
pocket3.Reversed = True

# Sketch on YZ plane
sketch6 = doc.addObject("Sketcher::SketchObject", "Sketch005")
body.addObject(sketch6)
sketch6.AttachmentSupport = (doc.YZ_Plane, [""])
sketch6.MapMode = "FlatFace"
sketch6.AttachmentOffset = App.Placement(V(0, 0, -23), App.Rotation())
sketch6.addGeometry([
    Part.LineSegment(V(-6.7, 34.4, 0), V(-9.5, 34.4, 0)),
    Part.LineSegment(V(-9.5, 34.4, 0), V(-9.5, 29.4, 0)),
    Part.LineSegment(V(-9.5, 29.4, 0), V(-6.7, 29.4, 0)),
    Part.LineSegment(V(-6.7, 29.4, 0), V(-6.7, 34.4, 0)),
], False)
sketch6.addConstraint([
    Sketcher.Constraint("Coincident", 0, 2, 1, 1),
    Sketcher.Constraint("Coincident", 1, 2, 2, 1),
    Sketcher.Constraint("Coincident", 2, 2, 3, 1),
    Sketcher.Constraint("Coincident", 3, 2, 0, 1),
    Sketcher.Constraint("Horizontal", 0),
    Sketcher.Constraint("Vertical", 1),
    Sketcher.Constraint("Horizontal", 2),
    Sketcher.Constraint("Vertical", 3),
    Sketcher.Constraint("DistanceY", 1, 2, 1, 1, Q("5 mm")),
    Sketcher.Constraint("DistanceX", 0, 2, 0, 1, Q("2.8 mm")),
    Sketcher.Constraint("DistanceX", 0, 2, -1, 1, Q("9.5 mm")),
    Sketcher.Constraint("DistanceY", -1, 1, 0, 2, Q("34.39 mm")),
])
pocket4 = doc.addObject("PartDesign::Pocket", "Pocket003")
body.addObject(pocket4)
pocket4.Profile = sketch6
pocket4.Length = 5

# Sketch on XY plane
sketch7 = doc.addObject("Sketcher::SketchObject", "Sketch006")
body.addObject(sketch7)
sketch7.AttachmentSupport = (doc.XY_Plane, [""])
sketch7.MapMode = "FlatFace"
sketch7.AttachmentOffset = App.Placement(V(0, 0, -36.5), App.Rotation())
sketch7.addGeometry([
    Part.LineSegment(V(-17.6, -0.7, 0), V(-17.6, -4.2, 0)),
    Part.LineSegment(V(-17.6, -4.2, 0), V(-9.4, -4.2, 0)),
    Part.LineSegment(V(-9.4, -4.2, 0), V(-9.4, -0.7, 0)),
    Part.LineSegment(V(-9.4, -0.7, 0), V(-17.6, -0.7, 0)),
], False)
sketch7.addConstraint([
    Sketcher.Constraint("Coincident", 0, 2, 1, 1),
    Sketcher.Constraint("Coincident", 1, 2, 2, 1),
    Sketcher.Constraint("Coincident", 2, 2, 3, 1),
    Sketcher.Constraint("Coincident", 3, 2, 0, 1),
    Sketcher.Constraint("Vertical", 0),
    Sketcher.Constraint("Horizontal", 1),
    Sketcher.Constraint("Vertical", 2),
    Sketcher.Constraint("Horizontal", 3),
    Sketcher.Constraint("DistanceY", 0, 2, 0, 1, Q("3.5 mm")),
    Sketcher.Constraint("DistanceX", 1, 1, 1, 2, Q("8.25 mm")),
    Sketcher.Constraint("DistanceY", 0, 2, -1, 1, Q("4.15 mm")),
    Sketcher.Constraint("DistanceX", 0, 2, -1, 1, Q("17.625 mm")),
])
pocket5 = doc.addObject("PartDesign::Pocket", "Pocket004")
body.addObject(pocket5)
pocket5.Profile = sketch7
pocket5.Length = 5

doc.recompute()
